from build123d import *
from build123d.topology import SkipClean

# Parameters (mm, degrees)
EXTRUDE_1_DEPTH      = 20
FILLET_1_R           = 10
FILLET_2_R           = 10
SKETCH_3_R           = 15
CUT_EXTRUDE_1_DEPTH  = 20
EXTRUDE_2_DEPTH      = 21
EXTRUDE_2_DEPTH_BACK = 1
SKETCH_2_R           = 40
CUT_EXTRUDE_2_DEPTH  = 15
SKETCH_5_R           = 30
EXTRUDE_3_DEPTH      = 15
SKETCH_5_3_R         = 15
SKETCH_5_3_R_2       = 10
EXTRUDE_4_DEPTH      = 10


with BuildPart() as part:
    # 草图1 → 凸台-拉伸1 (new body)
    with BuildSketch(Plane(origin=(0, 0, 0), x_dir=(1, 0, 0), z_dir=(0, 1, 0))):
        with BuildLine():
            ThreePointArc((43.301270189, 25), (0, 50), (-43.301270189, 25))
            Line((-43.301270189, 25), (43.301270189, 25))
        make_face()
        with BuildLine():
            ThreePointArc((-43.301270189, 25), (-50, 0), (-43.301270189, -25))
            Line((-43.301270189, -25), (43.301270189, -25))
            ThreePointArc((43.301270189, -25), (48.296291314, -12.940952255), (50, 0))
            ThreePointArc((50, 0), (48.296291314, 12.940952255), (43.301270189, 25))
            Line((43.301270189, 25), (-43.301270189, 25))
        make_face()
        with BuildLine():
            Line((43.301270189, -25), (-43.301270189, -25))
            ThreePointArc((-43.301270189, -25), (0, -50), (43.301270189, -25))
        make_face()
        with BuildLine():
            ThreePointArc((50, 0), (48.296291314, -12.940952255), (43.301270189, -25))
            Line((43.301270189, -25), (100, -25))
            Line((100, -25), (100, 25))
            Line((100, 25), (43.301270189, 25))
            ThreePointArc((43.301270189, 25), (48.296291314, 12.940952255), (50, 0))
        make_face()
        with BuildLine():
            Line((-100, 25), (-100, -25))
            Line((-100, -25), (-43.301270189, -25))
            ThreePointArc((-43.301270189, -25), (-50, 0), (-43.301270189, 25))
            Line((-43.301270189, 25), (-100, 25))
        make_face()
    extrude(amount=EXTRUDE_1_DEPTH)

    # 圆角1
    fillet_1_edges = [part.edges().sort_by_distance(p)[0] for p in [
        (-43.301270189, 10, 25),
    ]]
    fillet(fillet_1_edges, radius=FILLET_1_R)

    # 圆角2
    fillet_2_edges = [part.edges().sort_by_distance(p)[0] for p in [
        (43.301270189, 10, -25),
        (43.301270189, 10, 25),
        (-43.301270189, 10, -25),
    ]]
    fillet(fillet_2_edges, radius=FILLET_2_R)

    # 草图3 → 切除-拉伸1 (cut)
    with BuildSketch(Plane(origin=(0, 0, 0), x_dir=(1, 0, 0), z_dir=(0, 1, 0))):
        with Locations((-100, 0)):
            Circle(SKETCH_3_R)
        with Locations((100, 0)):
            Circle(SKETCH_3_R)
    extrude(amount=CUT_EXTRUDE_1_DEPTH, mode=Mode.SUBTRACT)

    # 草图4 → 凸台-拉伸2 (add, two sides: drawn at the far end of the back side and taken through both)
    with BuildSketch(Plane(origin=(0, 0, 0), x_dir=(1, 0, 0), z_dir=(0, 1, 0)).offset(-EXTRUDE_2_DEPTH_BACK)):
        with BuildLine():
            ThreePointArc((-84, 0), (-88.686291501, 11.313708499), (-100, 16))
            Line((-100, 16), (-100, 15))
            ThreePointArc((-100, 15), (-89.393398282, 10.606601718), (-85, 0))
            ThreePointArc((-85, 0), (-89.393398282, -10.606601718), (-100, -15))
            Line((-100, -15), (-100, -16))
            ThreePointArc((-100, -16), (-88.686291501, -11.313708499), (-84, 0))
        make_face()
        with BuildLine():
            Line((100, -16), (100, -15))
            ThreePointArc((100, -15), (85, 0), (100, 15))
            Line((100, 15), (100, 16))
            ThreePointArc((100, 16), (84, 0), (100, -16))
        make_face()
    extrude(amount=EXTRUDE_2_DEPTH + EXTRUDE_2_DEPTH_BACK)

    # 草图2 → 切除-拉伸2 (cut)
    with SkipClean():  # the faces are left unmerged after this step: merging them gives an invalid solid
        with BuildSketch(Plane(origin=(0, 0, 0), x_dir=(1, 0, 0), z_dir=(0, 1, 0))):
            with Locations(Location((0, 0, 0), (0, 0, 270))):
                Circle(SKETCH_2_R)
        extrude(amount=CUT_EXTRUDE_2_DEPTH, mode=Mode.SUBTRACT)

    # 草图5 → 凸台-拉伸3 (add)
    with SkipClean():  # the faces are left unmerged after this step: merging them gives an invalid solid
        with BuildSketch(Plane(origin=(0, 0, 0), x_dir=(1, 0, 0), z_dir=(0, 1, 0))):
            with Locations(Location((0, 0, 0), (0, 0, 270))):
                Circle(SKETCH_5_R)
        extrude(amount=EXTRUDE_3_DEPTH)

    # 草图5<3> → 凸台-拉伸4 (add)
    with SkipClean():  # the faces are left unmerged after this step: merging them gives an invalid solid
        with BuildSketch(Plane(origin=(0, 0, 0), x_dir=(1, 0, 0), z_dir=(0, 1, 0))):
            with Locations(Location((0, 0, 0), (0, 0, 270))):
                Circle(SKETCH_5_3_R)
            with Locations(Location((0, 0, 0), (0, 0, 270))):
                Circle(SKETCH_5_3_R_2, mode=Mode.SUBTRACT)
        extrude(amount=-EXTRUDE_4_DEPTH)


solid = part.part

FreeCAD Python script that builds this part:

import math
import FreeCAD as App
import Part
import Sketcher
from FreeCAD import Vector
Q = App.Units.Quantity


def edges_at(feature, points):
    """Names of the edges that pass closest to the given points."""
    edges = feature.Shape.Edges
    near = lambda p: min(range(len(edges)), key=lambda i: edges[i].distToShape(Part.Vertex(*p))[0])
    return sorted({f"Edge{near(p) + 1}" for p in points})

doc = App.newDocument("Part")
body = doc.addObject("PartDesign::Body", "Body")

sketch1 = doc.addObject("Sketcher::SketchObject", "Sketch")
body.addObject(sketch1)
sketch1.AttachmentSupport = (doc.XZ_Plane, [""])
sketch1.MapMode = "FlatFace"
sketch1.addGeometry(Part.ArcOfCircle(Part.Circle(Vector(0, 0, 0), Vector(0, 0, 1), 50), math.radians(-150), math.radians(-30)), False)
sketch1.addGeometry(Part.LineSegment(Vector(-43.30127, -25, 0), Vector(-100, -25, 0)), False)
sketch1.addGeometry(Part.LineSegment(Vector(-100, -25, 0), Vector(-100, 25, 0)), False)
sketch1.addGeometry(Part.LineSegment(Vector(-100, 25, 0), Vector(-43.30127, 25, 0)), False)
sketch1.addGeometry(Part.ArcOfCircle(Part.Circle(Vector(0, 0, 0), Vector(0, 0, 1), 50), math.radians(30), math.radians(150)), False)
sketch1.addGeometry(Part.LineSegment(Vector(43.30127, 25, 0), Vector(100, 25, 0)), False)
sketch1.addGeometry(Part.LineSegment(Vector(100, 25, 0), Vector(100, -25, 0)), False)
sketch1.addGeometry(Part.LineSegment(Vector(100, -25, 0), Vector(43.30127, -25, 0)), False)
sketch1.addConstraint(Sketcher.Constraint("Coincident", 0, 1, 1, 1))
sketch1.addConstraint(Sketcher.Constraint("Coincident", 1, 2, 2, 1))
sketch1.addConstraint(Sketcher.Constraint("Coincident", 2, 2, 3, 1))
sketch1.addConstraint(Sketcher.Constraint("Coincident", 3, 2, 4, 2))
sketch1.addConstraint(Sketcher.Constraint("Coincident", 4, 1, 5, 1))
sketch1.addConstraint(Sketcher.Constraint("Coincident", 5, 2, 6, 1))
sketch1.addConstraint(Sketcher.Constraint("Coincident", 6, 2, 7, 1))
sketch1.addConstraint(Sketcher.Constraint("Coincident", 7, 2, 0, 2))
sketch1.addConstraint(Sketcher.Constraint("Horizontal", 1))
sketch1.addConstraint(Sketcher.Constraint("Vertical", 2))
sketch1.addConstraint(Sketcher.Constraint("Horizontal", 3))
sketch1.addConstraint(Sketcher.Constraint("Horizontal", 5))
sketch1.addConstraint(Sketcher.Constraint("Vertical", 6))
sketch1.addConstraint(Sketcher.Constraint("Horizontal", 7))
sketch1.addConstraint(Sketcher.Constraint("Coincident", 0, 3, -1, 1))
sketch1.addConstraint(Sketcher.Constraint("Coincident", 4, 3, -1, 1))
sketch1.addConstraint(Sketcher.Constraint("Equal", 0, 4))
sketch1.addConstraint(Sketcher.Constraint("Symmetric", 1, 2, 5, 2, -1, 1))
sketch1.addConstraint(Sketcher.Constraint("Horizontal", 3, 2, 4, 1))
sketch1.addConstraint(Sketcher.Constraint("Horizontal", 1, 2, 6, 2))
sketch1.addConstraint(Sketcher.Constraint("Radius", 0, Q("50 mm")))
sketch1.addConstraint(Sketcher.Constraint("DistanceY", 2, 1, 2, 2, Q("50 mm")))
sketch1.addConstraint(Sketcher.Constraint("DistanceX", 1, 2, -1, 1, Q("100 mm")))
pad1 = doc.addObject("PartDesign::Pad", "Pad")
body.addObject(pad1)
pad1.Profile = sketch1
pad1.Length = 20
pad1.Reversed = True
doc.recompute()

fillet = doc.addObject("PartDesign::Fillet", "Fillet")
body.addObject(fillet)
fillet.Base = (pad1, edges_at(pad1, [(-43.301, 10, 25)]))
fillet.Radius = 10
doc.recompute()

fillet2 = doc.addObject("PartDesign::Fillet", "Fillet001")
body.addObject(fillet2)
fillet2.Base = (fillet, edges_at(fillet, [(43.301, 10, -25), (43.301, 10, 25), (-43.301, 10, -25)]))
fillet2.Radius = 10

sketch2 = doc.addObject("Sketcher::SketchObject", "Sketch001")
body.addObject(sketch2)
sketch2.AttachmentSupport = (doc.XZ_Plane, [""])
sketch2.MapMode = "FlatFace"
sketch2.addGeometry(Part.Circle(Vector(-100, 0, 0), Vector(0, 0, 1), 15), False)
sketch2.addGeometry(Part.Circle(Vector(100, 0, 0), Vector(0, 0, 1), 15), False)
sketch2.addConstraint(Sketcher.Constraint("Equal", 0, 1))
sketch2.addConstraint(Sketcher.Constraint("Symmetric", 0, 3, 1, 3, -1, 1))
sketch2.addConstraint(Sketcher.Constraint("PointOnObject", 0, 3, -1))
sketch2.addConstraint(Sketcher.Constraint("Diameter", 0, Q("30 mm")))
sketch2.addConstraint(Sketcher.Constraint("DistanceX", 0, 3, -1, 1, Q("100 mm")))
pocket1 = doc.addObject("PartDesign::Pocket", "Pocket")
body.addObject(pocket1)
pocket1.Profile = sketch2
pocket1.Length = 20

sketch3 = doc.addObject("Sketcher::SketchObject", "Sketch002")
body.addObject(sketch3)
sketch3.AttachmentSupport = (doc.XZ_Plane, [""])
sketch3.MapMode = "FlatFace"
sketch3.addGeometry(Part.ArcOfCircle(Part.Circle(Vector(-100, 0, 0), Vector(0, 0, 1), 16), math.radians(-90), math.radians(0)), False)
sketch3.addGeometry(Part.LineSegment(Vector(-100, -16, 0), Vector(-100, -15, 0)), False)
sketch3.addGeometry(Part.ArcOfCircle(Part.Circle(Vector(-100, 0, 0), Vector(0, 0, 1), 15), math.radians(-90), math.radians(0)), False)
sketch3.addGeometry(Part.ArcOfCircle(Part.Circle(Vector(-100, 0, 0), Vector(0, 0, 1), 15), math.radians(0), math.radians(90)), False)
sketch3.addGeometry(Part.LineSegment(Vector(-100, 15, 0), Vector(-100, 16, 0)), False)
sketch3.addGeometry(Part.ArcOfCircle(Part.Circle(Vector(-100, 0, 0), Vector(0, 0, 1), 16), math.radians(0), math.radians(90)), False)
sketch3.addGeometry(Part.LineSegment(Vector(100, 16, 0), Vector(100, 15, 0)), False)
sketch3.addGeometry(Part.ArcOfCircle(Part.Circle(Vector(100, 0, 0), Vector(0, 0, 1), 15), math.radians(90), math.radians(270)), False)
sketch3.addGeometry(Part.LineSegment(Vector(100, -15, 0), Vector(100, -16, 0)), False)
sketch3.addGeometry(Part.ArcOfCircle(Part.Circle(Vector(100, 0, 0), Vector(0, 0, 1), 16), math.radians(90), math.radians(270)), False)
sketch3.addConstraint(Sketcher.Constraint("Coincident", 0, 1, 1, 1))
sketch3.addConstraint(Sketcher.Constraint("Coincident", 1, 2, 2, 1))
sketch3.addConstraint(Sketcher.Constraint("Tangent", 2, 2, 3, 1))
sketch3.addConstraint(Sketcher.Constraint("Coincident", 3, 2, 4, 1))
sketch3.addConstraint(Sketcher.Constraint("Coincident", 4, 2, 5, 2))
sketch3.addConstraint(Sketcher.Constraint("Tangent", 5, 1, 0, 2))
sketch3.addConstraint(Sketcher.Constraint("Coincident", 6, 2, 7, 1))
sketch3.addConstraint(Sketcher.Constraint("Coincident", 7, 2, 8, 1))
sketch3.addConstraint(Sketcher.Constraint("Coincident", 8, 2, 9, 2))
sketch3.addConstraint(Sketcher.Constraint("Coincident", 9, 1, 6, 1))
sketch3.addConstraint(Sketcher.Constraint("Vertical", 1))
sketch3.addConstraint(Sketcher.Constraint("Vertical", 4))
sketch3.addConstraint(Sketcher.Constraint("Vertical", 6))
sketch3.addConstraint(Sketcher.Constraint("Vertical", 8))
sketch3.addConstraint(Sketcher.Constraint("Coincident", 2, 3, 0, 3))
sketch3.addConstraint(Sketcher.Constraint("Coincident", 9, 3, 7, 3))
sketch3.addConstraint(Sketcher.Constraint("Equal", 2, 3))
sketch3.addConstraint(Sketcher.Constraint("Equal", 0, 5))
sketch3.addConstraint(Sketcher.Constraint("Equal", 3, 7))
sketch3.addConstraint(Sketcher.Constraint("Equal", 5, 9))
sketch3.addConstraint(Sketcher.Constraint("Symmetric", 0, 3, 7, 3, -1, 1))
sketch3.addConstraint(Sketcher.Constraint("Symmetric", 3, 2, 6, 2, -2))
sketch3.addConstraint(Sketcher.Constraint("PointOnObject", 2, 2, -1))
sketch3.addConstraint(Sketcher.Constraint("PointOnObject", 5, 1, -1))
sketch3.addConstraint(Sketcher.Constraint("Vertical", 5, 3, 0, 1))
sketch3.addConstraint(Sketcher.Constraint("Vertical", 1, 2, 3, 2))
sketch3.addConstraint(Sketcher.Constraint("Vertical", 6, 2, 7, 2))
sketch3.addConstraint(Sketcher.Constraint("Radius", 0, Q("16 mm")))
sketch3.addConstraint(Sketcher.Constraint("Radius", 2, Q("15 mm")))
sketch3.addConstraint(Sketcher.Constraint("DistanceX", 0, 3, -1, 1, Q("100 mm")))
pad2 = doc.addObject("PartDesign::Pad", "Pad001")
body.addObject(pad2)
pad2.Profile = sketch3
pad2.Type = "TwoLengths"
pad2.Length = 21
pad2.Length2 = 1
pad2.Reversed = True

sketch4 = doc.addObject("Sketcher::SketchObject", "Sketch003")
body.addObject(sketch4)
sketch4.AttachmentSupport = (doc.XZ_Plane, [""])
sketch4.MapMode = "FlatFace"
sketch4.addGeometry(Part.Circle(Vector(0, 0, 0), Vector(0, 0, 1), 40), False)
sketch4.addConstraint(Sketcher.Constraint("Coincident", 0, 3, -1, 1))
sketch4.addConstraint(Sketcher.Constraint("Diameter", 0, Q("80 mm")))
pocket2 = doc.addObject("PartDesign::Pocket", "Pocket001")
body.addObject(pocket2)
pocket2.Profile = sketch4
pocket2.Length = 15

sketch5 = doc.addObject("Sketcher::SketchObject", "Sketch004")
body.addObject(sketch5)
sketch5.AttachmentSupport = (doc.XZ_Plane, [""])
sketch5.MapMode = "FlatFace"
sketch5.addGeometry(Part.Circle(Vector(0, 0, 0), Vector(0, 0, 1), 30), False)
sketch5.addConstraint(Sketcher.Constraint("Coincident", 0, 3, -1, 1))
sketch5.addConstraint(Sketcher.Constraint("Diameter", 0, Q("60 mm")))
pad3 = doc.addObject("PartDesign::Pad", "Pad002")
body.addObject(pad3)
pad3.Profile = sketch5
pad3.Length = 15
pad3.Reversed = True

sketch6 = doc.addObject("Sketcher::SketchObject", "Sketch005")
body.addObject(sketch6)
sketch6.AttachmentSupport = (doc.XZ_Plane, [""])
sketch6.MapMode = "FlatFace"
sketch6.addGeometry(Part.Circle(Vector(0, 0, 0), Vector(0, 0, 1), 15), False)
sketch6.addGeometry(Part.Circle(Vector(0, 0, 0), Vector(0, 0, 1), 10), False)
sketch6.addConstraint(Sketcher.Constraint("Coincident", 0, 3, -1, 1))
sketch6.addConstraint(Sketcher.Constraint("Coincident", 1, 3, -1, 1))
sketch6.addConstraint(Sketcher.Constraint("Diameter", 0, Q("30 mm")))
sketch6.addConstraint(Sketcher.Constraint("Diameter", 1, Q("20 mm")))
pad4 = doc.addObject("PartDesign::Pad", "Pad003")
body.addObject(pad4)
pad4.Profile = sketch6
pad4.Length = 10

doc.recompute()
